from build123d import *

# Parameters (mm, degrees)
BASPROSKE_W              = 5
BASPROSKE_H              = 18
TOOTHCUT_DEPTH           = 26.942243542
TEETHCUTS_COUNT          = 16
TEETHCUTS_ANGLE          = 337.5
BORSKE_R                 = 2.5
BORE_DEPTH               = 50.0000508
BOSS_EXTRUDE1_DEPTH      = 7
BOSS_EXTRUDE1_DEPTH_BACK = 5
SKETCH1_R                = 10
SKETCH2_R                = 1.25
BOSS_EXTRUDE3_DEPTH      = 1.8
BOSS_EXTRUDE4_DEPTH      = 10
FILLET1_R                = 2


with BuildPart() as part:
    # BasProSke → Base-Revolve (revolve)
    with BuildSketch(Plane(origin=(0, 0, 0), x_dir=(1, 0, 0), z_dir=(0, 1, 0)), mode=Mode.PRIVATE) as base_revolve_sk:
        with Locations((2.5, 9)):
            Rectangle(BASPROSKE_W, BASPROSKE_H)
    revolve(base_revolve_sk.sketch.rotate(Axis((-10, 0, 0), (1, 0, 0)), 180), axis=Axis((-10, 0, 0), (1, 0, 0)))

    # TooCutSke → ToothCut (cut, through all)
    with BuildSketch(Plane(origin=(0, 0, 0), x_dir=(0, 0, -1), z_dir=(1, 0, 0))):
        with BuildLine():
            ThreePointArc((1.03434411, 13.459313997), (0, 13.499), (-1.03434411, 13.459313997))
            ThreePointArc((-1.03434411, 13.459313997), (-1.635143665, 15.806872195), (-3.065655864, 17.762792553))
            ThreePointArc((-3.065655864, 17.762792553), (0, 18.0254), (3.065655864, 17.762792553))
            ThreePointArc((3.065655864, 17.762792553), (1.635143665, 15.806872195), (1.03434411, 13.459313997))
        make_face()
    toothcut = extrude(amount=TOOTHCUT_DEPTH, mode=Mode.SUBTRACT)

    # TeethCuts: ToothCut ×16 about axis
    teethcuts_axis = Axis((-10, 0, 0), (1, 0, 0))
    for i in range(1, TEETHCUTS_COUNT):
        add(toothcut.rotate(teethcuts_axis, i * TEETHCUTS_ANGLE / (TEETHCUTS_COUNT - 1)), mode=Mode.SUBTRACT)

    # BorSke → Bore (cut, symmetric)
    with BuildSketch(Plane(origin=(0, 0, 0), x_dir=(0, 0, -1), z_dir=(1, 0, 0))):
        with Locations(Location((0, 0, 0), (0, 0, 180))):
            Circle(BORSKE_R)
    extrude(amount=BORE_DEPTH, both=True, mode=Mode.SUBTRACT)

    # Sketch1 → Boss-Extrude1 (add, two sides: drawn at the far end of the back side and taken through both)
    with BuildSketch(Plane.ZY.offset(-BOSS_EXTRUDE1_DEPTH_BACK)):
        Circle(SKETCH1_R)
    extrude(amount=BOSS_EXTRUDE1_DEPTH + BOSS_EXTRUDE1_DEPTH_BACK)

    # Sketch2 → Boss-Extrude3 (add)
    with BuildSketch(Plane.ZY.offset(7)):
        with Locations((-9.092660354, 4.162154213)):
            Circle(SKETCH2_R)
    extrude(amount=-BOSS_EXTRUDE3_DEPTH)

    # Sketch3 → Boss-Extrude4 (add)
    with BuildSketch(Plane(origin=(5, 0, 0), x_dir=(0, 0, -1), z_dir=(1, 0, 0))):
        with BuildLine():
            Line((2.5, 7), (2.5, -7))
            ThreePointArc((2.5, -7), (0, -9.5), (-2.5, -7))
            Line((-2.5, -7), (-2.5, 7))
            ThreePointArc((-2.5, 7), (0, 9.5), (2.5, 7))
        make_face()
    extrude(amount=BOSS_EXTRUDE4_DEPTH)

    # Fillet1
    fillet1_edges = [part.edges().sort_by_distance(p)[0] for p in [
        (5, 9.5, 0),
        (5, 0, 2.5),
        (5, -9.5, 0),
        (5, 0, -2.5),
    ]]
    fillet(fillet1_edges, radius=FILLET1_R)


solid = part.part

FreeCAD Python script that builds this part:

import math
import FreeCAD as App
import Part
import Sketcher
from FreeCAD import Vector


def edges_at(feature, points):
    """Names of the edges that pass closest to the given points."""
    edges = feature.Shape.Edges
    near = lambda p: min(range(len(edges)), key=lambda i: edges[i].distToShape(Part.Vertex(*p))[0])
    return sorted({f"Edge{near(p) + 1}" for p in points})

doc = App.newDocument("Part")
body = doc.addObject("PartDesign::Body", "Body")

sketch1 = body.newObject("Sketcher::SketchObject", "Sketch")
sketch1.AttachmentSupport = (doc.getObject("XZ_Plane"), [""])
sketch1.MapMode = "FlatFace"
sketch1.addGeometry(Part.LineSegment(Vector(0, -18, 0), Vector(0, 0, 0)), False)
sketch1.addGeometry(Part.LineSegment(Vector(0, 0, 0), Vector(5, 0, 0)), False)
sketch1.addGeometry(Part.LineSegment(Vector(5, 0, 0), Vector(5, -18, 0)), False)
sketch1.addGeometry(Part.LineSegment(Vector(5, -18, 0), Vector(0, -18, 0)), False)
sketch1.addConstraint(Sketcher.Constraint("Coincident", 0, 2, 1, 1))
sketch1.addConstraint(Sketcher.Constraint("Coincident", 1, 2, 2, 1))
sketch1.addConstraint(Sketcher.Constraint("Coincident", 2, 2, 3, 1))
sketch1.addConstraint(Sketcher.Constraint("Coincident", 3, 2, 0, 1))
sketch1.addConstraint(Sketcher.Constraint("Vertical", 0))
sketch1.addConstraint(Sketcher.Constraint("Horizontal", 1))
sketch1.addConstraint(Sketcher.Constraint("Vertical", 2))
sketch1.addConstraint(Sketcher.Constraint("Horizontal", 3))
sketch1.addConstraint(Sketcher.Constraint("Coincident", 0, 2, -1, 1))
sketch1.addConstraint(Sketcher.Constraint("DistanceX", 1, 1, 1, 2, 5.0))
sketch1.addConstraint(Sketcher.Constraint("DistanceY", 0, 1, 0, 2, 18.0))
revolution = body.newObject("PartDesign::Revolution", "Revolution")
revolution.Profile = sketch1
revolution.ReferenceAxis = (sketch1, ["H_Axis"])
revolution.Angle = 360

sketch2 = body.newObject("Sketcher::SketchObject", "Sketch001")
sketch2.AttachmentSupport = (doc.getObject("YZ_Plane"), [""])
sketch2.MapMode = "FlatFace"
sketch2.addGeometry(Part.ArcOfCircle(Part.Circle(Vector(0, 0, 0), Vector(0, 0, 1), 13.5), math.radians(-4.39), math.radians(4.39)), False)
sketch2.addGeometry(Part.ArcOfCircle(Part.Circle(Vector(13.1, -7.4, 0), Vector(0, 0, 1), 6.4), math.radians(43), math.radians(87)), False)
sketch2.addGeometry(Part.ArcOfCircle(Part.Circle(Vector(0, 0, 0), Vector(0, 0, 1), 18), math.radians(-9.79), math.radians(9.79)), False)
sketch2.addGeometry(Part.ArcOfCircle(Part.Circle(Vector(13.1, 7.4, 0), Vector(0, 0, 1), 6.4), math.radians(-87), math.radians(-43)), False)
sketch2.addConstraint(Sketcher.Constraint("Coincident", 0, 1, 1, 2))
sketch2.addConstraint(Sketcher.Constraint("Coincident", 1, 1, 2, 1))
sketch2.addConstraint(Sketcher.Constraint("Coincident", 2, 2, 3, 2))
sketch2.addConstraint(Sketcher.Constraint("Coincident", 3, 1, 0, 2))
sketch2.addConstraint(Sketcher.Constraint("Coincident", 0, 3, -1, 1))
sketch2.addConstraint(Sketcher.Constraint("Coincident", 2, 3, -1, 1))
sketch2.addConstraint(Sketcher.Constraint("Equal", 1, 3))
sketch2.addConstraint(Sketcher.Constraint("Symmetric", 1, 3, 3, 3, -1))
sketch2.addConstraint(Sketcher.Constraint("Radius", 1, 6.4))
sketch2.addConstraint(Sketcher.Constraint("Radius", 0, 13.499))
sketch2.addConstraint(Sketcher.Constraint("Radius", 2, 18.0254))
sketch2.addConstraint(Sketcher.Constraint("DistanceY", 0, 1, 2, 2, 4.1))
sketch2.addConstraint(Sketcher.Constraint("DistanceY", 1, 3, 3, 3, 14.84559))
pocket1 = body.newObject("PartDesign::Pocket", "Pocket")
pocket1.Profile = sketch2
pocket1.Type = "ThroughAll"
pocket1.Reversed = True
doc.recompute()

polarpattern = body.newObject("PartDesign::PolarPattern", "PolarPattern")
polarpattern.Originals = [pocket1]
polarpattern.Axis = (doc.getObject("X_Axis"), [""])
polarpattern.Angle = 360
polarpattern.Occurrences = 16
body.Tip = polarpattern

sketch3 = body.newObject("Sketcher::SketchObject", "Sketch002")
sketch3.AttachmentSupport = (doc.getObject("YZ_Plane"), [""])
sketch3.MapMode = "FlatFace"
sketch3.addGeometry(Part.Circle(Vector(0, 0, 0), Vector(0, 0, 1), 2.5), False)
sketch3.addConstraint(Sketcher.Constraint("Coincident", 0, 3, -1, 1))
sketch3.addConstraint(Sketcher.Constraint("Diameter", 0, 5.0))
pocket2 = body.newObject("PartDesign::Pocket", "Pocket001")
pocket2.Profile = sketch3
pocket2.Length = 100.000102
pocket2.Midplane = True

sketch4 = body.newObject("Sketcher::SketchObject", "Sketch003")
sketch4.AttachmentSupport = (doc.getObject("YZ_Plane"), [""])
sketch4.MapMode = "FlatFace"
sketch4.addGeometry(Part.Circle(Vector(0, 0, 0), Vector(0, 0, 1), 10), False)
sketch4.addConstraint(Sketcher.Constraint("Coincident", 0, 3, -1, 1))
sketch4.addConstraint(Sketcher.Constraint("Diameter", 0, 20.0))
pad1 = body.newObject("PartDesign::Pad", "Pad")
pad1.Profile = sketch4
pad1.Type = "TwoLengths"
pad1.Length = 7
pad1.Length2 = 5
pad1.Reversed = True

sketch5 = body.newObject("Sketcher::SketchObject", "Sketch004")
sketch5.AttachmentSupport = (doc.getObject("YZ_Plane"), [""])
sketch5.MapMode = "FlatFace"
sketch5.AttachmentOffset = App.Placement(Vector(0, 0, -7), App.Rotation())
sketch5.addGeometry(Part.Circle(Vector(4.2, -9.1, 0), Vector(0, 0, 1), 1.2), False)
sketch5.addConstraint(Sketcher.Constraint("Diameter", 0, 2.5))
sketch5.addConstraint(Sketcher.Constraint("DistanceY", 0, 3, -1, 1, 9.09266))
sketch5.addConstraint(Sketcher.Constraint("DistanceX", -1, 1, 0, 3, 4.162154))
pad2 = body.newObject("PartDesign::Pad", "Pad001")
pad2.Profile = sketch5
pad2.Length = 1.8

sketch6 = body.newObject("Sketcher::SketchObject", "Sketch005")
sketch6.AttachmentSupport = (doc.getObject("YZ_Plane"), [""])
sketch6.MapMode = "FlatFace"
sketch6.AttachmentOffset = App.Placement(Vector(0, 0, 5), App.Rotation())
sketch6.addGeometry(Part.LineSegment(Vector(-7, -2.5, 0), Vector(7, -2.5, 0)), False)
sketch6.addGeometry(Part.ArcOfCircle(Part.Circle(Vector(7, 0, 0), Vector(0, 0, 1), 2.5), math.radians(-90), math.radians(90)), False)
sketch6.addGeometry(Part.LineSegment(Vector(7, 2.5, 0), Vector(-7, 2.5, 0)), False)
sketch6.addGeometry(Part.ArcOfCircle(Part.Circle(Vector(-7, 0, 0), Vector(0, 0, 1), 2.5), math.radians(90), math.radians(270)), False)
sketch6.addConstraint(Sketcher.Constraint("Tangent", 0, 2, 1, 1))
sketch6.addConstraint(Sketcher.Constraint("Tangent", 1, 2, 2, 1))
sketch6.addConstraint(Sketcher.Constraint("Tangent", 2, 2, 3, 1))
sketch6.addConstraint(Sketcher.Constraint("Tangent", 3, 2, 0, 1))
sketch6.addConstraint(Sketcher.Constraint("Horizontal", 0))
sketch6.addConstraint(Sketcher.Constraint("Horizontal", 2))
sketch6.addConstraint(Sketcher.Constraint("Symmetric", 1, 3, 3, 3, -1, 1))
sketch6.addConstraint(Sketcher.Constraint("Radius", 1, 2.5))
sketch6.addConstraint(Sketcher.Constraint("DistanceX", 0, 1, 0, 2, 14.0))
pad3 = body.newObject("PartDesign::Pad", "Pad002")
pad3.Profile = sketch6
pad3.Length = 10
doc.recompute()

fillet = body.newObject("PartDesign::Fillet", "Fillet")
fillet.Base = (pad3, edges_at(pad3, [
    (5, 9.5, 0),
    (5, 0, 2.5),
    (5, -9.5, 0),
    (5, 0, -2.5),
]))
fillet.Radius = 2

doc.recompute()
